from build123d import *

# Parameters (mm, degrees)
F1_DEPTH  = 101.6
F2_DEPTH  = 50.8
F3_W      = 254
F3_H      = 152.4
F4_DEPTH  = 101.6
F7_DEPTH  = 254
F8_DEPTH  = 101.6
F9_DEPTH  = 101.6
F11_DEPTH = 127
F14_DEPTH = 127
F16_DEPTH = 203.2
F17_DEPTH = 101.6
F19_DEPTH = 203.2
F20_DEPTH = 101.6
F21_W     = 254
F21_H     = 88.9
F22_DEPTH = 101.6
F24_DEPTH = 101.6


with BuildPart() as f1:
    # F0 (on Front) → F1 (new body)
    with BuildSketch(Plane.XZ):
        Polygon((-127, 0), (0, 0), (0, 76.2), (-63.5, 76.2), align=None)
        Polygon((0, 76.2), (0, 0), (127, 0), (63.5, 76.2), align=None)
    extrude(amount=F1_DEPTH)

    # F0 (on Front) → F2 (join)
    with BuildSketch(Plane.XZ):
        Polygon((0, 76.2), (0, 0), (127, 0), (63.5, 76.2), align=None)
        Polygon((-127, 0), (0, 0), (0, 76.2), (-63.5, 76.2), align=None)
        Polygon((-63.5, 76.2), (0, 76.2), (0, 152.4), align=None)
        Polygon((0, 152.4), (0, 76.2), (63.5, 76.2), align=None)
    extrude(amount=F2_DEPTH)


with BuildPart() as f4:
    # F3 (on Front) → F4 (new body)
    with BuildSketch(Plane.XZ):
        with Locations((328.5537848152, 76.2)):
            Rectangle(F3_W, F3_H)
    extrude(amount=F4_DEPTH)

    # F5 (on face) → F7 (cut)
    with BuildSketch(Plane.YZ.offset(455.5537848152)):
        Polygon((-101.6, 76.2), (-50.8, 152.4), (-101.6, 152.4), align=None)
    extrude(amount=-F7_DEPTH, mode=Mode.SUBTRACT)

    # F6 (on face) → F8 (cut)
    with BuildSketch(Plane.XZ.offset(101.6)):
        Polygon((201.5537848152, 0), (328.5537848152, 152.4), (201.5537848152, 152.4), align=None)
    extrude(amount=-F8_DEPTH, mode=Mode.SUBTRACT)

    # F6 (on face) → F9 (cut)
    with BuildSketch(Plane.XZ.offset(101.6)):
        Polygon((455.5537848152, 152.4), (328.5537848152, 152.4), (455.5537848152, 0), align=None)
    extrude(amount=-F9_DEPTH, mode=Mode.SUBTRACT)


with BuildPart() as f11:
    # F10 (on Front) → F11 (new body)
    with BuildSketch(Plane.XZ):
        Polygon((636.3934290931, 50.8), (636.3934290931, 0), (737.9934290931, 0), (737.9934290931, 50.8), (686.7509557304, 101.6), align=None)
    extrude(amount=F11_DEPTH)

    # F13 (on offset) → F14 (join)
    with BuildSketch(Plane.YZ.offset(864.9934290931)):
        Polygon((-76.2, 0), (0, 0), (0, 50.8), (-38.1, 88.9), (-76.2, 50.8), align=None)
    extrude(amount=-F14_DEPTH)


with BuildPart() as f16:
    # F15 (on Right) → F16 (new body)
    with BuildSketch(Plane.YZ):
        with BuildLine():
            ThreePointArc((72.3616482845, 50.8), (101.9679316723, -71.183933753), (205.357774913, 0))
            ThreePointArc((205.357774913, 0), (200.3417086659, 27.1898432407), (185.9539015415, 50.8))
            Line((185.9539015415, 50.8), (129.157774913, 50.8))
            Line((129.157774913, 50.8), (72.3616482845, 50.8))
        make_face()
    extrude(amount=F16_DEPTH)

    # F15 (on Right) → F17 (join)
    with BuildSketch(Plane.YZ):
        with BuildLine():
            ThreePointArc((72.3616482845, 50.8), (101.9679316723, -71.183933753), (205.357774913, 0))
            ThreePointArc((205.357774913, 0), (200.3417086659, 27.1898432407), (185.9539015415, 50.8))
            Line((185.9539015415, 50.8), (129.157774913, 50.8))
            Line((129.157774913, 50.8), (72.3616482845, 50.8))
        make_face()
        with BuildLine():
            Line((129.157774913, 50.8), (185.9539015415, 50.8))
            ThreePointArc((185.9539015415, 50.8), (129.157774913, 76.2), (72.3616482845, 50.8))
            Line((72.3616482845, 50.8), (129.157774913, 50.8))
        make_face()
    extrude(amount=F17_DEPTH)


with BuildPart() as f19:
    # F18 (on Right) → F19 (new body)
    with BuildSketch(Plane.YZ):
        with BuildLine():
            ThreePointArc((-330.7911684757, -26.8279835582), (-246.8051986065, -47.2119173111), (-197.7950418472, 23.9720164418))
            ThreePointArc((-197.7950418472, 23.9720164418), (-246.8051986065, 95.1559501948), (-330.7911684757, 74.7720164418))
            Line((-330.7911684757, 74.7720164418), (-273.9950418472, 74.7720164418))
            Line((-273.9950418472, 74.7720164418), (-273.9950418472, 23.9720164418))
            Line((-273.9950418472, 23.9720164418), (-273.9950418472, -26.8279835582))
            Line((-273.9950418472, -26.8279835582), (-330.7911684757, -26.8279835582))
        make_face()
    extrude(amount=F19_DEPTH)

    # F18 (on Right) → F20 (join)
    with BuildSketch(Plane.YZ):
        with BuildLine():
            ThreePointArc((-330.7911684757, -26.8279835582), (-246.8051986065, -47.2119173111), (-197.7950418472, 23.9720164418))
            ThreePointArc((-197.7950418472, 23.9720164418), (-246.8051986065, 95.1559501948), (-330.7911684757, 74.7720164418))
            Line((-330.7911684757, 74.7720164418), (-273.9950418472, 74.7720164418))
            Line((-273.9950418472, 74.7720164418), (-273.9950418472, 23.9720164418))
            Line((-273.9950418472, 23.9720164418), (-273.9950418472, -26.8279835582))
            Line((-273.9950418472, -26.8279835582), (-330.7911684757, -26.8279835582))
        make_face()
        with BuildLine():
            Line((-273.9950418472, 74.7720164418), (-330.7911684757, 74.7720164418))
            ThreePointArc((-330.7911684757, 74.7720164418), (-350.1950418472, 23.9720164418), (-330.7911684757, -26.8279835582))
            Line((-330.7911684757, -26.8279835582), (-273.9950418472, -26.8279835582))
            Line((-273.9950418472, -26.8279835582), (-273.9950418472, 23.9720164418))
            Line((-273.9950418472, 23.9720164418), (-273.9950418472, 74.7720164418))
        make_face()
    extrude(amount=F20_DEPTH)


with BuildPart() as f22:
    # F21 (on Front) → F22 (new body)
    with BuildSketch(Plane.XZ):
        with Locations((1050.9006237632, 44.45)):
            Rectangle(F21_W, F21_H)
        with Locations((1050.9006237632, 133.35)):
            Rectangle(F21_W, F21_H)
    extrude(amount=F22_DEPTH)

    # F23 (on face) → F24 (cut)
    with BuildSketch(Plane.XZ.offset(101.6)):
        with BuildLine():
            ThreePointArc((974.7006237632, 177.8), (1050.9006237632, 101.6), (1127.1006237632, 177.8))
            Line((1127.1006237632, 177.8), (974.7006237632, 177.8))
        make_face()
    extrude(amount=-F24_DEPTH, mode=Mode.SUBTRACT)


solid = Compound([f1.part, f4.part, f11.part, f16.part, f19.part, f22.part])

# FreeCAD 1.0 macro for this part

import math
import FreeCAD as App
import Part
import Sketcher

V = App.Vector
Q = App.Units.Quantity

doc = App.newDocument("Part")
body = doc.addObject("PartDesign::Body", "Body")

# Sketch on XZ plane
sketch1 = doc.addObject("Sketcher::SketchObject", "Sketch")
body.addObject(sketch1)
sketch1.AttachmentSupport = (doc.XZ_Plane, [""])
sketch1.MapMode = "FlatFace"
sketch1.addGeometry(Part.LineSegment(V(-127, 0, 0), V(127, 0, 0)), False)
sketch1.addGeometry(Part.LineSegment(V(127, 0, 0), V(64, 76, 0)), False)
sketch1.addGeometry(Part.LineSegment(V(64, 76, 0), V(-64, 76, 0)), False)
sketch1.addGeometry(Part.LineSegment(V(-64, 76, 0), V(-127, 0, 0)), False)
sketch1.addConstraint(Sketcher.Constraint("Coincident", 0, 2, 1, 1))
sketch1.addConstraint(Sketcher.Constraint("Coincident", 1, 2, 2, 1))
sketch1.addConstraint(Sketcher.Constraint("Coincident", 2, 2, 3, 1))
sketch1.addConstraint(Sketcher.Constraint("Coincident", 3, 2, 0, 1))
sketch1.addConstraint(Sketcher.Constraint("Horizontal", 0))
sketch1.addConstraint(Sketcher.Constraint("Horizontal", 2))
sketch1.addConstraint(Sketcher.Constraint("Symmetric", 0, 2, 3, 2, -1, 1))
sketch1.addConstraint(Sketcher.Constraint("Equal", 1, 3))
sketch1.addConstraint(Sketcher.Constraint("DistanceX", 0, 1, 0, 2, Q("10 in")))
sketch1.addConstraint(Sketcher.Constraint("DistanceX", 2, 2, 2, 1, Q("5 in")))
sketch1.addConstraint(Sketcher.Constraint("DistanceY", -1, 1, 1, 2, Q("3 in")))
pad1 = doc.addObject("PartDesign::Pad", "Pad")
body.addObject(pad1)
pad1.Profile = sketch1
pad1.Length = Q("4 in")

# Sketch on XZ plane
sketch2 = doc.addObject("Sketcher::SketchObject", "Sketch001")
body.addObject(sketch2)
sketch2.AttachmentSupport = (doc.XZ_Plane, [""])
sketch2.MapMode = "FlatFace"
sketch2.addGeometry(Part.LineSegment(V(127, 0, 0), V(0, 152, 0)), False)
sketch2.addGeometry(Part.LineSegment(V(0, 152, 0), V(-127, 0, 0)), False)
sketch2.addGeometry(Part.LineSegment(V(-127, 0, 0), V(127, 0, 0)), False)
sketch2.addConstraint(Sketcher.Constraint("Coincident", 0, 2, 1, 1))
sketch2.addConstraint(Sketcher.Constraint("Coincident", 1, 2, 2, 1))
sketch2.addConstraint(Sketcher.Constraint("Coincident", 2, 2, 0, 1))
sketch2.addConstraint(Sketcher.Constraint("Horizontal", 2))
sketch2.addConstraint(Sketcher.Constraint("Symmetric", 1, 2, 2, 2, -1, 1))
sketch2.addConstraint(Sketcher.Constraint("PointOnObject", 0, 2, -2))
sketch2.addConstraint(Sketcher.Constraint("DistanceX", 2, 1, 2, 2, Q("10 in")))
sketch2.addConstraint(Sketcher.Constraint("DistanceY", -1, 1, 0, 2, Q("6 in")))
pad2 = doc.addObject("PartDesign::Pad", "Pad001")
body.addObject(pad2)
pad2.Profile = sketch2
pad2.Length = Q("2 in")
body2 = doc.addObject("PartDesign::Body", "Body001")

# Sketch on XZ plane
sketch3 = doc.addObject("Sketcher::SketchObject", "Sketch002")
body2.addObject(sketch3)
sketch3.AttachmentSupport = (doc.getObject("XZ_Plane001"), [""])
sketch3.MapMode = "FlatFace"
sketch3.addGeometry(Part.LineSegment(V(202, 152, 0), V(202, 0, 0)), False)
sketch3.addGeometry(Part.LineSegment(V(202, 0, 0), V(456, 0, 0)), False)
sketch3.addGeometry(Part.LineSegment(V(456, 0, 0), V(456, 152, 0)), False)
sketch3.addGeometry(Part.LineSegment(V(456, 152, 0), V(202, 152, 0)), False)
sketch3.addConstraint(Sketcher.Constraint("Coincident", 0, 2, 1, 1))
sketch3.addConstraint(Sketcher.Constraint("Coincident", 1, 2, 2, 1))
sketch3.addConstraint(Sketcher.Constraint("Coincident", 2, 2, 3, 1))
sketch3.addConstraint(Sketcher.Constraint("Coincident", 3, 2, 0, 1))
sketch3.addConstraint(Sketcher.Constraint("Vertical", 0))
sketch3.addConstraint(Sketcher.Constraint("Horizontal", 1))
sketch3.addConstraint(Sketcher.Constraint("Vertical", 2))
sketch3.addConstraint(Sketcher.Constraint("Horizontal", 3))
sketch3.addConstraint(Sketcher.Constraint("PointOnObject", 0, 2, -1))
sketch3.addConstraint(Sketcher.Constraint("DistanceX", 1, 1, 1, 2, Q("10 in")))
sketch3.addConstraint(Sketcher.Constraint("DistanceY", 0, 2, 0, 1, Q("6 in")))
sketch3.addConstraint(Sketcher.Constraint("DistanceX", -1, 1, 0, 2, 201.553785))
pad3 = doc.addObject("PartDesign::Pad", "Pad002")
body2.addObject(pad3)
pad3.Profile = sketch3
pad3.Length = Q("4 in")

# Sketch on YZ plane
sketch4 = doc.addObject("Sketcher::SketchObject", "Sketch003")
body2.addObject(sketch4)
sketch4.AttachmentSupport = (doc.getObject("YZ_Plane001"), [""])
sketch4.MapMode = "FlatFace"
sketch4.AttachmentOffset = App.Placement(V(0, 0, 455.553785), App.Rotation())
sketch4.addGeometry(Part.LineSegment(V(-102, 76, 0), V(-51, 152, 0)), False)
sketch4.addGeometry(Part.LineSegment(V(-51, 152, 0), V(-102, 152, 0)), False)
sketch4.addGeometry(Part.LineSegment(V(-102, 152, 0), V(-102, 76, 0)), False)
sketch4.addConstraint(Sketcher.Constraint("Coincident", 0, 2, 1, 1))
sketch4.addConstraint(Sketcher.Constraint("Coincident", 1, 2, 2, 1))
sketch4.addConstraint(Sketcher.Constraint("Coincident", 2, 2, 0, 1))
sketch4.addConstraint(Sketcher.Constraint("Horizontal", 1))
sketch4.addConstraint(Sketcher.Constraint("Vertical", 2))
sketch4.addConstraint(Sketcher.Constraint("DistanceX", 1, 2, 1, 1, Q("2 in")))
sketch4.addConstraint(Sketcher.Constraint("DistanceY", 2, 2, 2, 1, Q("3 in")))
sketch4.addConstraint(Sketcher.Constraint("DistanceX", 0, 2, -1, 1, Q("2 in")))
sketch4.addConstraint(Sketcher.Constraint("DistanceY", -1, 1, 0, 2, Q("6 in")))
pocket1 = doc.addObject("PartDesign::Pocket", "Pocket")
body2.addObject(pocket1)
pocket1.Profile = sketch4
pocket1.Length = Q("10 in")

# Sketch on XZ plane
sketch5 = doc.addObject("Sketcher::SketchObject", "Sketch004")
body2.addObject(sketch5)
sketch5.AttachmentSupport = (doc.getObject("XZ_Plane001"), [""])
sketch5.MapMode = "FlatFace"
sketch5.AttachmentOffset = App.Placement(V(0, 0, 4 * 25.4), App.Rotation())
sketch5.addGeometry(Part.LineSegment(V(202, 0, 0), V(329, 152, 0)), False)
sketch5.addGeometry(Part.LineSegment(V(329, 152, 0), V(202, 152, 0)), False)
sketch5.addGeometry(Part.LineSegment(V(202, 152, 0), V(202, 0, 0)), False)
sketch5.addConstraint(Sketcher.Constraint("Coincident", 0, 2, 1, 1))
sketch5.addConstraint(Sketcher.Constraint("Coincident", 1, 2, 2, 1))
sketch5.addConstraint(Sketcher.Constraint("Coincident", 2, 2, 0, 1))
sketch5.addConstraint(Sketcher.Constraint("Horizontal", 1))
sketch5.addConstraint(Sketcher.Constraint("Vertical", 2))
sketch5.addConstraint(Sketcher.Constraint("PointOnObject", 2, 2, -1))
sketch5.addConstraint(Sketcher.Constraint("DistanceX", 1, 2, 1, 1, Q("5 in")))
sketch5.addConstraint(Sketcher.Constraint("DistanceY", 2, 2, 2, 1, Q("6 in")))
sketch5.addConstraint(Sketcher.Constraint("DistanceX", -1, 1, 0, 2, 328.553785))
pocket2 = doc.addObject("PartDesign::Pocket", "Pocket001")
body2.addObject(pocket2)
pocket2.Profile = sketch5
pocket2.Length = Q("4 in")

# Sketch on XZ plane
sketch6 = doc.addObject("Sketcher::SketchObject", "Sketch005")
body2.addObject(sketch6)
sketch6.AttachmentSupport = (doc.getObject("XZ_Plane001"), [""])
sketch6.MapMode = "FlatFace"
sketch6.AttachmentOffset = App.Placement(V(0, 0, 4 * 25.4), App.Rotation())
sketch6.addGeometry(Part.LineSegment(V(456, 152, 0), V(329, 152, 0)), False)
sketch6.addGeometry(Part.LineSegment(V(329, 152, 0), V(456, 0, 0)), False)
sketch6.addGeometry(Part.LineSegment(V(456, 0, 0), V(456, 152, 0)), False)
sketch6.addConstraint(Sketcher.Constraint("Coincident", 0, 2, 1, 1))
sketch6.addConstraint(Sketcher.Constraint("Coincident", 1, 2, 2, 1))
sketch6.addConstraint(Sketcher.Constraint("Coincident", 2, 2, 0, 1))
sketch6.addConstraint(Sketcher.Constraint("Horizontal", 0))
sketch6.addConstraint(Sketcher.Constraint("Vertical", 2))
sketch6.addConstraint(Sketcher.Constraint("PointOnObject", 1, 2, -1))
sketch6.addConstraint(Sketcher.Constraint("DistanceX", 0, 2, 0, 1, Q("5 in")))
sketch6.addConstraint(Sketcher.Constraint("DistanceY", 2, 1, 2, 2, Q("6 in")))
sketch6.addConstraint(Sketcher.Constraint("DistanceX", -1, 1, 0, 2, 328.553785))
pocket3 = doc.addObject("PartDesign::Pocket", "Pocket002")
body2.addObject(pocket3)
pocket3.Profile = sketch6
pocket3.Length = Q("4 in")
body3 = doc.addObject("PartDesign::Body", "Body002")

# Sketch on XZ plane
sketch7 = doc.addObject("Sketcher::SketchObject", "Sketch006")
body3.addObject(sketch7)
sketch7.AttachmentSupport = (doc.getObject("XZ_Plane002"), [""])
sketch7.MapMode = "FlatFace"
sketch7.addGeometry(Part.LineSegment(V(636, 51, 0), V(636, 0, 0)), False)
sketch7.addGeometry(Part.LineSegment(V(636, 0, 0), V(738, 0, 0)), False)
sketch7.addGeometry(Part.LineSegment(V(738, 0, 0), V(738, 51, 0)), False)
sketch7.addGeometry(Part.LineSegment(V(738, 51, 0), V(687, 102, 0)), False)
sketch7.addGeometry(Part.LineSegment(V(687, 102, 0), V(636, 51, 0)), False)
sketch7.addConstraint(Sketcher.Constraint("Coincident", 0, 2, 1, 1))
sketch7.addConstraint(Sketcher.Constraint("Coincident", 1, 2, 2, 1))
sketch7.addConstraint(Sketcher.Constraint("Coincident", 2, 2, 3, 1))
sketch7.addConstraint(Sketcher.Constraint("Coincident", 3, 2, 4, 1))
sketch7.addConstraint(Sketcher.Constraint("Coincident", 4, 2, 0, 1))
sketch7.addConstraint(Sketcher.Constraint("Vertical", 0))
sketch7.addConstraint(Sketcher.Constraint("Horizontal", 1))
sketch7.addConstraint(Sketcher.Constraint("Vertical", 2))
sketch7.addConstraint(Sketcher.Constraint("PointOnObject", 0, 2, -1))
sketch7.addConstraint(Sketcher.Constraint("Horizontal", 2, 2, 4, 2))
sketch7.addConstraint(Sketcher.Constraint("DistanceX", 1, 1, 1, 2, Q("4 in")))
sketch7.addConstraint(Sketcher.Constraint("DistanceY", 0, 2, 0, 1, Q("2 in")))
sketch7.addConstraint(Sketcher.Constraint("DistanceY", -1, 1, 3, 2, Q("4 in")))
sketch7.addConstraint(Sketcher.Constraint("DistanceX", -1, 1, 0, 2, 636.393429))
sketch7.addConstraint(Sketcher.Constraint("Distance", 3, 72.155603))
pad4 = doc.addObject("PartDesign::Pad", "Pad003")
body3.addObject(pad4)
pad4.Profile = sketch7
pad4.Length = Q("5 in")

# Sketch on YZ plane
sketch8 = doc.addObject("Sketcher::SketchObject", "Sketch007")
body3.addObject(sketch8)
sketch8.AttachmentSupport = (doc.getObject("YZ_Plane002"), [""])
sketch8.MapMode = "FlatFace"
sketch8.AttachmentOffset = App.Placement(V(0, 0, 864.993429), App.Rotation())
sketch8.addGeometry(Part.LineSegment(V(-76, 0, 0), V(0, 0, 0)), False)
sketch8.addGeometry(Part.LineSegment(V(0, 0, 0), V(0, 51, 0)), False)
sketch8.addGeometry(Part.LineSegment(V(0, 51, 0), V(-38, 89, 0)), False)
sketch8.addGeometry(Part.LineSegment(V(-38, 89, 0), V(-76, 51, 0)), False)
sketch8.addGeometry(Part.LineSegment(V(-76, 51, 0), V(-76, 0, 0)), False)
sketch8.addConstraint(Sketcher.Constraint("Coincident", 0, 2, 1, 1))
sketch8.addConstraint(Sketcher.Constraint("Coincident", 1, 2, 2, 1))
sketch8.addConstraint(Sketcher.Constraint("Coincident", 2, 2, 3, 1))
sketch8.addConstraint(Sketcher.Constraint("Coincident", 3, 2, 4, 1))
sketch8.addConstraint(Sketcher.Constraint("Coincident", 4, 2, 0, 1))
sketch8.addConstraint(Sketcher.Constraint("Horizontal", 0))
sketch8.addConstraint(Sketcher.Constraint("Vertical", 1))
sketch8.addConstraint(Sketcher.Constraint("Vertical", 4))
sketch8.addConstraint(Sketcher.Constraint("Coincident", 0, 2, -1, 1))
sketch8.addConstraint(Sketcher.Constraint("Perpendicular", 2, 3))
sketch8.addConstraint(Sketcher.Constraint("Horizontal", 1, 2, 3, 2))
sketch8.addConstraint(Sketcher.Constraint("Equal", 2, 3))
sketch8.addConstraint(Sketcher.Constraint("DistanceX", 0, 1, 0, 2, Q("3 in")))
sketch8.addConstraint(Sketcher.Constraint("DistanceY", 1, 1, 1, 2, Q("2 in")))
pad5 = doc.addObject("PartDesign::Pad", "Pad004")
body3.addObject(pad5)
pad5.Profile = sketch8
pad5.Length = Q("5 in")
pad5.Reversed = True
body4 = doc.addObject("PartDesign::Body", "Body003")

# Sketch on YZ plane
sketch9 = doc.addObject("Sketcher::SketchObject", "Sketch008")
body4.addObject(sketch9)
sketch9.AttachmentSupport = (doc.getObject("YZ_Plane003"), [""])
sketch9.MapMode = "FlatFace"
sketch9.addGeometry(Part.ArcOfCircle(Part.Circle(V(129, 0, 0), V(0, 0, 1), 76), math.radians(138), math.radians(360)), False)
sketch9.addGeometry(Part.ArcOfCircle(Part.Circle(V(129, 0, 0), V(0, 0, 1), 76), math.radians(0), math.radians(42)), False)
sketch9.addGeometry(Part.LineSegment(V(186, 51, 0), V(72, 51, 0)), False)
sketch9.addConstraint(Sketcher.Constraint("Tangent", 0, 2, 1, 1))
sketch9.addConstraint(Sketcher.Constraint("Coincident", 1, 2, 2, 1))
sketch9.addConstraint(Sketcher.Constraint("Coincident", 2, 2, 0, 1))
sketch9.addConstraint(Sketcher.Constraint("Horizontal", 2))
sketch9.addConstraint(Sketcher.Constraint("Equal", 0, 1))
sketch9.addConstraint(Sketcher.Constraint("PointOnObject", 0, 3, -1))
sketch9.addConstraint(Sketcher.Constraint("PointOnObject", 0, 2, -1))
sketch9.addConstraint(Sketcher.Constraint("Radius", 0, Q("3 in")))
sketch9.addConstraint(Sketcher.Constraint("DistanceY", -1, 1, 1, 2, Q("2 in")))
sketch9.addConstraint(Sketcher.Constraint("DistanceX", -1, 1, 1, 2, 185.953902))
pad6 = doc.addObject("PartDesign::Pad", "Pad005")
body4.addObject(pad6)
pad6.Profile = sketch9
pad6.Length = Q("8 in")

# Sketch on YZ plane
sketch10 = doc.addObject("Sketcher::SketchObject", "Sketch009")
body4.addObject(sketch10)
sketch10.AttachmentSupport = (doc.getObject("YZ_Plane003"), [""])
sketch10.MapMode = "FlatFace"
sketch10.addGeometry(Part.ArcOfCircle(Part.Circle(V(129, 0, 0), V(0, 0, 1), 76), math.radians(0), math.radians(42)), False)
sketch10.addGeometry(Part.ArcOfCircle(Part.Circle(V(129, 0, 0), V(0, 0, 1), 76), math.radians(42), math.radians(360)), False)
sketch10.addConstraint(Sketcher.Constraint("Tangent", 0, 1, 1, 2))
sketch10.addConstraint(Sketcher.Constraint("Coincident", 1, 1, 0, 2))
sketch10.addConstraint(Sketcher.Constraint("PointOnObject", 0, 3, -1))
sketch10.addConstraint(Sketcher.Constraint("PointOnObject", 0, 1, -1))
sketch10.addConstraint(Sketcher.Constraint("Radius", 0, Q("3 in")))
sketch10.addConstraint(Sketcher.Constraint("DistanceY", -1, 1, 1, 1, Q("2 in")))
sketch10.addConstraint(Sketcher.Constraint("DistanceX", -1, 1, 1, 1, 185.953902))
pad7 = doc.addObject("PartDesign::Pad", "Pad006")
body4.addObject(pad7)
pad7.Profile = sketch10
pad7.Length = Q("4 in")
body5 = doc.addObject("PartDesign::Body", "Body004")

# Sketch on YZ plane
sketch11 = doc.addObject("Sketcher::SketchObject", "Sketch010")
body5.addObject(sketch11)
sketch11.AttachmentSupport = (doc.getObject("YZ_Plane004"), [""])
sketch11.MapMode = "FlatFace"
sketch11.addGeometry(Part.ArcOfCircle(Part.Circle(V(-274, 24, 0), V(0, 0, 1), 76), math.radians(-138), math.radians(138)), False)
sketch11.addGeometry(Part.LineSegment(V(-331, 75, 0), V(-274, 75, 0)), False)
sketch11.addGeometry(Part.LineSegment(V(-274, 75, 0), V(-274, -27, 0)), False)
sketch11.addGeometry(Part.LineSegment(V(-274, -27, 0), V(-331, -27, 0)), False)
sketch11.addConstraint(Sketcher.Constraint("Coincident", 0, 2, 1, 1))
sketch11.addConstraint(Sketcher.Constraint("Coincident", 1, 2, 2, 1))
sketch11.addConstraint(Sketcher.Constraint("Coincident", 2, 2, 3, 1))
sketch11.addConstraint(Sketcher.Constraint("Coincident", 3, 2, 0, 1))
sketch11.addConstraint(Sketcher.Constraint("Horizontal", 1))
sketch11.addConstraint(Sketcher.Constraint("Vertical", 2))
sketch11.addConstraint(Sketcher.Constraint("Horizontal", 3))
sketch11.addConstraint(Sketcher.Constraint("Vertical", 0, 3, 1, 2))
sketch11.addConstraint(Sketcher.Constraint("Vertical", 0, 2, 3, 2))
sketch11.addConstraint(Sketcher.Constraint("Radius", 0, Q("3 in")))
sketch11.addConstraint(Sketcher.Constraint("DistanceY", 2, 2, 2, 1, Q("4 in")))
sketch11.addConstraint(Sketcher.Constraint("DistanceX", 0, 3, -1, 1, 273.995042))
sketch11.addConstraint(Sketcher.Constraint("DistanceY", -1, 1, 0, 3, 23.972016))
pad8 = doc.addObject("PartDesign::Pad", "Pad007")
body5.addObject(pad8)
pad8.Profile = sketch11
pad8.Length = Q("8 in")

# Sketch on YZ plane
sketch12 = doc.addObject("Sketcher::SketchObject", "Sketch011")
body5.addObject(sketch12)
sketch12.AttachmentSupport = (doc.getObject("YZ_Plane004"), [""])
sketch12.MapMode = "FlatFace"
sketch12.addGeometry(Part.Circle(V(-274, 24, 0), V(0, 0, 1), 76), False)
sketch12.addConstraint(Sketcher.Constraint("Diameter", 0, Q("6 in")))
sketch12.addConstraint(Sketcher.Constraint("DistanceX", 0, 3, -1, 1, 273.995042))
sketch12.addConstraint(Sketcher.Constraint("DistanceY", -1, 1, 0, 3, 23.972016))
pad9 = doc.addObject("PartDesign::Pad", "Pad008")
body5.addObject(pad9)
pad9.Profile = sketch12
pad9.Length = Q("4 in")
body6 = doc.addObject("PartDesign::Body", "Body005")

# Sketch on XZ plane
sketch13 = doc.addObject("Sketcher::SketchObject", "Sketch012")
body6.addObject(sketch13)
sketch13.AttachmentSupport = (doc.getObject("XZ_Plane005"), [""])
sketch13.MapMode = "FlatFace"
sketch13.addGeometry(Part.LineSegment(V(924, 0, 0), V(1178, 0, 0)), False)
sketch13.addGeometry(Part.LineSegment(V(1178, 0, 0), V(1178, 178, 0)), False)
sketch13.addGeometry(Part.LineSegment(V(1178, 178, 0), V(924, 178, 0)), False)
sketch13.addGeometry(Part.LineSegment(V(924, 178, 0), V(924, 0, 0)), False)
sketch13.addConstraint(Sketcher.Constraint("Coincident", 0, 2, 1, 1))
sketch13.addConstraint(Sketcher.Constraint("Coincident", 1, 2, 2, 1))
sketch13.addConstraint(Sketcher.Constraint("Coincident", 2, 2, 3, 1))
sketch13.addConstraint(Sketcher.Constraint("Coincident", 3, 2, 0, 1))
sketch13.addConstraint(Sketcher.Constraint("Horizontal", 0))
sketch13.addConstraint(Sketcher.Constraint("Vertical", 1))
sketch13.addConstraint(Sketcher.Constraint("Horizontal", 2))
sketch13.addConstraint(Sketcher.Constraint("Vertical", 3))
sketch13.addConstraint(Sketcher.Constraint("PointOnObject", 0, 2, -1))
sketch13.addConstraint(Sketcher.Constraint("DistanceX", 0, 1, 0, 2, Q("10 in")))
sketch13.addConstraint(Sketcher.Constraint("DistanceY", 1, 1, 1, 2, Q("7 in")))
sketch13.addConstraint(Sketcher.Constraint("DistanceX", -1, 1, 0, 2, 1177.900624))
pad10 = doc.addObject("PartDesign::Pad", "Pad009")
body6.addObject(pad10)
pad10.Profile = sketch13
pad10.Length = Q("4 in")

# Sketch on XZ plane
sketch14 = doc.addObject("Sketcher::SketchObject", "Sketch013")
body6.addObject(sketch14)
sketch14.AttachmentSupport = (doc.getObject("XZ_Plane005"), [""])
sketch14.MapMode = "FlatFace"
sketch14.AttachmentOffset = App.Placement(V(0, 0, 4 * 25.4), App.Rotation())
sketch14.addGeometry(Part.ArcOfCircle(Part.Circle(V(1051, 178, 0), V(0, 0, 1), 76), math.radians(180), math.radians(360)), False)
sketch14.addGeometry(Part.LineSegment(V(1127, 178, 0), V(975, 178, 0)), False)
sketch14.addConstraint(Sketcher.Constraint("Coincident", 0, 1, 1, 2))
sketch14.addConstraint(Sketcher.Constraint("Coincident", 1, 1, 0, 2))
sketch14.addConstraint(Sketcher.Constraint("Horizontal", 1))
sketch14.addConstraint(Sketcher.Constraint("Radius", 0, Q("3 in")))
sketch14.addConstraint(Sketcher.Constraint("DistanceY", -1, 1, 0, 3, Q("7 in")))
sketch14.addConstraint(Sketcher.Constraint("DistanceY", -1, 1, 0, 1, Q("7 in")))
sketch14.addConstraint(Sketcher.Constraint("DistanceX", -1, 1, 0, 3, 1050.900624))
pocket4 = doc.addObject("PartDesign::Pocket", "Pocket003")
body6.addObject(pocket4)
pocket4.Profile = sketch14
pocket4.Length = Q("4 in")

doc.recompute()
